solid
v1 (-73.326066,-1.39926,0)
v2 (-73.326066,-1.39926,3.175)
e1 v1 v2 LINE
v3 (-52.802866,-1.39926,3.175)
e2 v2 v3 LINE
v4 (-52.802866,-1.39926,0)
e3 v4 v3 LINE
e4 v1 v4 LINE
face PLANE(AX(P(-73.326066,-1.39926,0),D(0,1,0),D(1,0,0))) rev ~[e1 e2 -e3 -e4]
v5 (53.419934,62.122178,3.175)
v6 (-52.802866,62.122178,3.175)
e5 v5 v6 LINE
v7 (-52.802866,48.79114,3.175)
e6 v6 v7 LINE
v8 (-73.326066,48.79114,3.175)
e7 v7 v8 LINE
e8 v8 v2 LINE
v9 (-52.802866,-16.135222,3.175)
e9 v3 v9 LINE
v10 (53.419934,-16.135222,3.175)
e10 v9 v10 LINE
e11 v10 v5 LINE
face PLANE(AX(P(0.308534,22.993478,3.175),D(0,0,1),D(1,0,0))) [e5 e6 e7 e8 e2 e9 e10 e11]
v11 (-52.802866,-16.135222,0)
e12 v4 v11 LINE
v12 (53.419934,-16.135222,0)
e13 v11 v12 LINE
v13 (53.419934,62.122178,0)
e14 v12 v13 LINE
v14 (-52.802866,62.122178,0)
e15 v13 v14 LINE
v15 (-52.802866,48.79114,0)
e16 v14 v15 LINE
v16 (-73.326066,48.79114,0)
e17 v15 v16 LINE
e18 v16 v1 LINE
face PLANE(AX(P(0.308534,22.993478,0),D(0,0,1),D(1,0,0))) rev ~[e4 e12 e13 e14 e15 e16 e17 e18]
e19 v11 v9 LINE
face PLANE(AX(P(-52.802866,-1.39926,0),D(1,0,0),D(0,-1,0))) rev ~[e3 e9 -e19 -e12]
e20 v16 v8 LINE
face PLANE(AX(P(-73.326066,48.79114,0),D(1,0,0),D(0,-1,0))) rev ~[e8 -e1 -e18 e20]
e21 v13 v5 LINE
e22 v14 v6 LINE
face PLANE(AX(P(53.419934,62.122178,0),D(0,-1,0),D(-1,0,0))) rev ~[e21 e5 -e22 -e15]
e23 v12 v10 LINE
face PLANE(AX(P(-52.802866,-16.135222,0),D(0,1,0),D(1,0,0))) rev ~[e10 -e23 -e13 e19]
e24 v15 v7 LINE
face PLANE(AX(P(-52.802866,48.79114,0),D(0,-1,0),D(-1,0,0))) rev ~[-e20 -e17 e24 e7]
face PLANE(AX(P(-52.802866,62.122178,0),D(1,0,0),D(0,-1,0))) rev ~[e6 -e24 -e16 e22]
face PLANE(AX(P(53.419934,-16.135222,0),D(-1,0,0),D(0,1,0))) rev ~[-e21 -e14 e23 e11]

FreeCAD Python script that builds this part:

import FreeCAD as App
import Part
import Sketcher
Q = App.Units.Quantity


def add_polygon(sketch, points):
    """Adds a closed chain of lines whose ends are joined by coincident constraints."""
    first, n = sketch.GeometryCount, len(points)
    for a, b in zip(points, points[1:] + points[:1]):
        sketch.addGeometry(Part.LineSegment(App.Vector(*a, 0), App.Vector(*b, 0)), False)
    for i in range(n):
        sketch.addConstraint(Sketcher.Constraint("Coincident", first + i, 2, first + (i + 1) % n, 1))

doc = App.newDocument("Part")
body = doc.addObject("PartDesign::Body", "Body")

# Sketch on XY plane
sketch1 = body.newObject("Sketcher::SketchObject", "Sketch")
sketch1.AttachmentSupport = (doc.getObject("XY_Plane"), [""])
sketch1.MapMode = "FlatFace"
add_polygon(sketch1, [(53.419934, 62.122178), (-52.802866, 62.122178), (-52.802866, 48.79114), (-73.326066, 48.79114), (-73.326066, -1.39926), (-52.802866, -1.39926), (-52.802866, -16.135222), (53.419934, -16.135222)])  # lines 0-7
sketch1.addConstraint([
    Sketcher.Constraint("Horizontal", 0),
    Sketcher.Constraint("Vertical", 1),
    Sketcher.Constraint("Horizontal", 2),
    Sketcher.Constraint("Vertical", 3),
    Sketcher.Constraint("Horizontal", 4),
    Sketcher.Constraint("Vertical", 5),
    Sketcher.Constraint("Horizontal", 6),
    Sketcher.Constraint("Vertical", 7),
    Sketcher.Constraint("Vertical", 1, 2, 4, 2),
    Sketcher.Constraint("DistanceX", 0, 2, 0, 1, Q("4.182 in")),
    Sketcher.Constraint("DistanceX", 2, 2, 2, 1, Q("0.808 in")),
    Sketcher.Constraint("DistanceY", 3, 2, 3, 1, Q("1.976 in")),
    Sketcher.Constraint("DistanceY", 7, 1, 7, 2, Q("3.081 in")),
    Sketcher.Constraint("DistanceY", 5, 2, 5, 1, 14.735962),
    Sketcher.Constraint("DistanceY", -1, 1, 1, 2, 48.79114),
    Sketcher.Constraint("DistanceX", 0, 2, -1, 1, 52.802866),
])
pad1 = body.newObject("PartDesign::Pad", "Pad")
pad1.Profile = sketch1
pad1.Length = Q("0.125 in")

doc.recompute()
